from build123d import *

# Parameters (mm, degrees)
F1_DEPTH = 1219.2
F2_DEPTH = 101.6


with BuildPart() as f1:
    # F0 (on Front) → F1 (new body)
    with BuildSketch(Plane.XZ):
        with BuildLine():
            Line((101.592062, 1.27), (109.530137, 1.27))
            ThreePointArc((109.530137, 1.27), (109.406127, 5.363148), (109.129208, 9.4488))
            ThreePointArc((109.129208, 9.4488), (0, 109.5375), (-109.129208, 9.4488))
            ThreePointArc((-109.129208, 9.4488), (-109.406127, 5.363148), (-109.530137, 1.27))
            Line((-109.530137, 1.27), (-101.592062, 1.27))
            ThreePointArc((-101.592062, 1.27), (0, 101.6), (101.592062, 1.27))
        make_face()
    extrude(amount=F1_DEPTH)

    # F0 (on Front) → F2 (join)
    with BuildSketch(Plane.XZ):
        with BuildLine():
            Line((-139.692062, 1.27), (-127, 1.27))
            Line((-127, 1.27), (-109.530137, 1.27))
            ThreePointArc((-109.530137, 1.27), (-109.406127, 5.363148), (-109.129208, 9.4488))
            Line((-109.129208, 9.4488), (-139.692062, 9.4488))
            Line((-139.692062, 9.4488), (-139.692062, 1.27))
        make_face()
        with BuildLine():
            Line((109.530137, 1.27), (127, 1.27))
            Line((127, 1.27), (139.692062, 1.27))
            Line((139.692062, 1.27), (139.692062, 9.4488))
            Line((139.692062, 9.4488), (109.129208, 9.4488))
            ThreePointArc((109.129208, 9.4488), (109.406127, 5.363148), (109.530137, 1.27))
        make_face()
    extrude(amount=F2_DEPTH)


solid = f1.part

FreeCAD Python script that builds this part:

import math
import FreeCAD as App
import Part
import Sketcher
Q = App.Units.Quantity

doc = App.newDocument("Part")
body = doc.addObject("PartDesign::Body", "Body")

# Sketch on XZ plane
sketch1 = body.newObject("Sketcher::SketchObject", "Sketch")
sketch1.AttachmentSupport = (doc.getObject("XZ_Plane"), [""])
sketch1.MapMode = "FlatFace"
sketch1.addGeometry(Part.LineSegment(App.Vector(101.592062, 1.27, 0), App.Vector(109.530137, 1.27, 0)), False)
sketch1.addGeometry(Part.ArcOfCircle(Part.Circle(App.Vector(0.000952, 0.00005, 0), App.Vector(0, 0, 1), 109.536547), math.radians(0.664294), math.radians(4.948551)), False)
sketch1.addGeometry(Part.ArcOfCircle(Part.Circle(App.Vector(0, 0, 0), App.Vector(0, 0, 1), 109.5375), math.radians(4.948534), math.radians(175.051466)), False)
sketch1.addGeometry(Part.ArcOfCircle(Part.Circle(App.Vector(-0.000952, 0.00005, 0), App.Vector(0, 0, 1), 109.536547), math.radians(175.051449), math.radians(179.335706)), False)
sketch1.addGeometry(Part.LineSegment(App.Vector(-109.530137, 1.27, 0), App.Vector(-101.592062, 1.27, 0)), False)
sketch1.addGeometry(Part.ArcOfCircle(Part.Circle(App.Vector(0, 0, 0), App.Vector(0, 0, 1), 101.6), math.radians(0.716216), math.radians(179.283784)), False)
sketch1.addConstraint(Sketcher.Constraint("Coincident", 0, 2, 1, 1))
sketch1.addConstraint(Sketcher.Constraint("Coincident", 1, 2, 2, 1))
sketch1.addConstraint(Sketcher.Constraint("Coincident", 2, 2, 3, 1))
sketch1.addConstraint(Sketcher.Constraint("Coincident", 3, 2, 4, 1))
sketch1.addConstraint(Sketcher.Constraint("Coincident", 4, 2, 5, 2))
sketch1.addConstraint(Sketcher.Constraint("Coincident", 5, 1, 0, 1))
sketch1.addConstraint(Sketcher.Constraint("Horizontal", 0))
sketch1.addConstraint(Sketcher.Constraint("Horizontal", 4))
sketch1.addConstraint(Sketcher.Constraint("Coincident", 2, 3, -1, 1))
sketch1.addConstraint(Sketcher.Constraint("Coincident", 5, 3, -1, 1))
sketch1.addConstraint(Sketcher.Constraint("Radius", 5, Q("4 in")))
sketch1.addConstraint(Sketcher.Constraint("Radius", 2, Q("4.3125 in")))
sketch1.addConstraint(Sketcher.Constraint("DistanceY", -1, 1, 0, 2, Q("0.05 in")))
sketch1.addConstraint(Sketcher.Constraint("DistanceY", -1, 1, 3, 2, Q("0.05 in")))
sketch1.addConstraint(Sketcher.Constraint("DistanceY", -1, 1, 1, 2, Q("0.372 in")))
sketch1.addConstraint(Sketcher.Constraint("DistanceY", -1, 1, 2, 2, Q("0.372 in")))
sketch1.addConstraint(Sketcher.Constraint("Radius", 1, 109.536547))
sketch1.addConstraint(Sketcher.Constraint("Radius", 3, 109.536547))
sketch1.addConstraint(Sketcher.Constraint("DistanceX", 0, 1, 0, 2, 7.938075))
sketch1.addConstraint(Sketcher.Constraint("DistanceX", 4, 1, 4, 2, 7.938075))
pad1 = body.newObject("PartDesign::Pad", "Pad")
pad1.Profile = sketch1
pad1.Length = Q("48 in")

# Sketch on XZ plane
sketch2 = body.newObject("Sketcher::SketchObject", "Sketch001")
sketch2.AttachmentSupport = (doc.getObject("XZ_Plane"), [""])
sketch2.MapMode = "FlatFace"
sketch2.addGeometry(Part.LineSegment(App.Vector(-139.692062, 1.27, 0), App.Vector(-109.530137, 1.27, 0)), False)
sketch2.addGeometry(Part.ArcOfCircle(Part.Circle(App.Vector(-0.000952, 0.00005, 0), App.Vector(0, 0, 1), 109.536547), math.radians(175.051449), math.radians(179.335706)), False)
sketch2.addGeometry(Part.LineSegment(App.Vector(-109.129208, 9.4488, 0), App.Vector(-139.692062, 9.4488, 0)), False)
sketch2.addGeometry(Part.LineSegment(App.Vector(-139.692062, 9.4488, 0), App.Vector(-139.692062, 1.27, 0)), False)
sketch2.addGeometry(Part.LineSegment(App.Vector(109.530137, 1.27, 0), App.Vector(139.692062, 1.27, 0)), False)
sketch2.addGeometry(Part.LineSegment(App.Vector(139.692062, 1.27, 0), App.Vector(139.692062, 9.4488, 0)), False)
sketch2.addGeometry(Part.LineSegment(App.Vector(139.692062, 9.4488, 0), App.Vector(109.129208, 9.4488, 0)), False)
sketch2.addGeometry(Part.ArcOfCircle(Part.Circle(App.Vector(0.000952, 0.00005, 0), App.Vector(0, 0, 1), 109.536547), math.radians(0.664294), math.radians(4.948551)), False)
sketch2.addConstraint(Sketcher.Constraint("Coincident", 0, 2, 1, 2))
sketch2.addConstraint(Sketcher.Constraint("Coincident", 1, 1, 2, 1))
sketch2.addConstraint(Sketcher.Constraint("Coincident", 2, 2, 3, 1))
sketch2.addConstraint(Sketcher.Constraint("Coincident", 3, 2, 0, 1))
sketch2.addConstraint(Sketcher.Constraint("Coincident", 4, 2, 5, 1))
sketch2.addConstraint(Sketcher.Constraint("Coincident", 5, 2, 6, 1))
sketch2.addConstraint(Sketcher.Constraint("Coincident", 6, 2, 7, 2))
sketch2.addConstraint(Sketcher.Constraint("Coincident", 7, 1, 4, 1))
sketch2.addConstraint(Sketcher.Constraint("Horizontal", 0))
sketch2.addConstraint(Sketcher.Constraint("Horizontal", 2))
sketch2.addConstraint(Sketcher.Constraint("Vertical", 3))
sketch2.addConstraint(Sketcher.Constraint("Horizontal", 4))
sketch2.addConstraint(Sketcher.Constraint("Vertical", 5))
sketch2.addConstraint(Sketcher.Constraint("Horizontal", 6))
sketch2.addConstraint(Sketcher.Constraint("Equal", 1, 7))
sketch2.addConstraint(Sketcher.Constraint("Symmetric", 1, 3, 7, 3, -2))
sketch2.addConstraint(Sketcher.Constraint("Symmetric", 3, 2, 4, 2, -2))
sketch2.addConstraint(Sketcher.Constraint("Horizontal", 2, 2, 5, 2))
sketch2.addConstraint(Sketcher.Constraint("DistanceY", 3, 2, 3, 1, Q("0.322 in")))
sketch2.addConstraint(Sketcher.Constraint("DistanceY", -1, 1, 0, 2, Q("0.05 in")))
sketch2.addConstraint(Sketcher.Constraint("Radius", 1, 109.536547))
sketch2.addConstraint(Sketcher.Constraint("DistanceX", 0, 2, 4, 2, 249.222199))
sketch2.addConstraint(Sketcher.Constraint("DistanceX", 0, 1, 0, 2, 30.161925))
sketch2.addConstraint(Sketcher.Constraint("DistanceX", 2, 2, 2, 1, 30.562854))
pad2 = body.newObject("PartDesign::Pad", "Pad001")
pad2.Profile = sketch2
pad2.Length = Q("4 in")

doc.recompute()
